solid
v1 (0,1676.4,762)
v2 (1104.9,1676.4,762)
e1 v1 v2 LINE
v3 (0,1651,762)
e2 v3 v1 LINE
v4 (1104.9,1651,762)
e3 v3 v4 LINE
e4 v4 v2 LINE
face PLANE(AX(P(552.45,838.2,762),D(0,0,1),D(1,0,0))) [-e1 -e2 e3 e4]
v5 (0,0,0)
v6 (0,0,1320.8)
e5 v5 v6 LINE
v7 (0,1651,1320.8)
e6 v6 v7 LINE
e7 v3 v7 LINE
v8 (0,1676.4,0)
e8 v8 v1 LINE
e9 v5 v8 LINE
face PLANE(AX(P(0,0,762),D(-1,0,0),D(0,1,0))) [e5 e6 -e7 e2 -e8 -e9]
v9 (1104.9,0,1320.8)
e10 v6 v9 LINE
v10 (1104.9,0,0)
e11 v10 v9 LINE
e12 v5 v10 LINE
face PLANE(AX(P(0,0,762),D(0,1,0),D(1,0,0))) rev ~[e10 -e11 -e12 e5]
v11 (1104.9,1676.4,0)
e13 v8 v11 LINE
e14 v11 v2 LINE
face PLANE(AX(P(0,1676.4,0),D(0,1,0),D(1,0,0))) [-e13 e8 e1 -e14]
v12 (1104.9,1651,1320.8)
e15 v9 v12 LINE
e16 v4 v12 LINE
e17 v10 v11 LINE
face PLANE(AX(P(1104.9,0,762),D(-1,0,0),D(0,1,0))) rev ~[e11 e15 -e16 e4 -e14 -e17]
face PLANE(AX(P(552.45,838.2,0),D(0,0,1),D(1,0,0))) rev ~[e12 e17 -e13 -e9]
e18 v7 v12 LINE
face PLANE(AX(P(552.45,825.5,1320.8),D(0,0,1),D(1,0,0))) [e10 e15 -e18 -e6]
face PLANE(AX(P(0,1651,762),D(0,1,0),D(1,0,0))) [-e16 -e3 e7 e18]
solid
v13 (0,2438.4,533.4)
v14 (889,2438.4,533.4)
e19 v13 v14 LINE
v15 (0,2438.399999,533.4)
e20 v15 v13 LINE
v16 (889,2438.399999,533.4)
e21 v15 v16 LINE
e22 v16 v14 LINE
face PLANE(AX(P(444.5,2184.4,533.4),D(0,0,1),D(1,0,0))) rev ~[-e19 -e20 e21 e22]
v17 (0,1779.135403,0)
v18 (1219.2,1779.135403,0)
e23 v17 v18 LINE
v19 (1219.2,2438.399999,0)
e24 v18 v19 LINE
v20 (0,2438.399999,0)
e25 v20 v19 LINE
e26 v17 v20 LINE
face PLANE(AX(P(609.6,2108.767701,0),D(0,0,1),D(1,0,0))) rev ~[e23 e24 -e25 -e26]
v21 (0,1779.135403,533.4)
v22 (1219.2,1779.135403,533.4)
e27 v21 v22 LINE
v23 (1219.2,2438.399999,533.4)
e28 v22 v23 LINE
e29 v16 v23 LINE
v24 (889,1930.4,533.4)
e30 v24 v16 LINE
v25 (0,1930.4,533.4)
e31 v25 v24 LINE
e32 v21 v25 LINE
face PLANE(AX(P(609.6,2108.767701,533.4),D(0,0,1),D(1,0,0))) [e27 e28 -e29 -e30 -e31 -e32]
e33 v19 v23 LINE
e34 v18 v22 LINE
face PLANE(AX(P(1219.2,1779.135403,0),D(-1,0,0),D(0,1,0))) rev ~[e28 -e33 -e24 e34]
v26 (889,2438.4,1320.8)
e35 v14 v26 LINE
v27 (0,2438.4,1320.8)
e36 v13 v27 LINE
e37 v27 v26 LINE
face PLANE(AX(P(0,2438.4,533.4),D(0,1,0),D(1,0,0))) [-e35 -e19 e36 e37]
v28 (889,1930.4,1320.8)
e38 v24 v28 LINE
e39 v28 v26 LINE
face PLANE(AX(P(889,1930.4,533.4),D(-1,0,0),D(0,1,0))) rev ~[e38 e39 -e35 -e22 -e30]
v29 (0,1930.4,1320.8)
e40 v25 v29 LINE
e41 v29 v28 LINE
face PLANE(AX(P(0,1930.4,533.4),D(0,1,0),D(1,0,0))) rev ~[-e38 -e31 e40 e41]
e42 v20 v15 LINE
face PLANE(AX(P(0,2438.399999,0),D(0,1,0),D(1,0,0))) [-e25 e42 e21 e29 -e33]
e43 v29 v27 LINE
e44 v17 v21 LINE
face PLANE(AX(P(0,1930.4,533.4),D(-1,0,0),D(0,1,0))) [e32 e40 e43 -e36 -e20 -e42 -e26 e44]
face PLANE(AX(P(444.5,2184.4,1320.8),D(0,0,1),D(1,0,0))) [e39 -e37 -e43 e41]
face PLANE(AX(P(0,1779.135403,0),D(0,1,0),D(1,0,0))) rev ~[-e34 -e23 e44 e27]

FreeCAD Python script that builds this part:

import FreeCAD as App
import Part
import Sketcher
Q = App.Units.Quantity


def add_polygon(sketch, points):
    """Adds a closed chain of lines whose ends are joined by coincident constraints."""
    first, n = sketch.GeometryCount, len(points)
    for a, b in zip(points, points[1:] + points[:1]):
        sketch.addGeometry(Part.LineSegment(App.Vector(*a, 0), App.Vector(*b, 0)), False)
    for i in range(n):
        sketch.addConstraint(Sketcher.Constraint("Coincident", first + i, 2, first + (i + 1) % n, 1))

doc = App.newDocument("Part")
body = doc.addObject("PartDesign::Body", "Body")

sketch1 = doc.addObject("Sketcher::SketchObject", "Sketch")
body.addObject(sketch1)
sketch1.AttachmentSupport = (doc.XY_Plane, [""])
sketch1.MapMode = "FlatFace"
add_polygon(sketch1, [(0, 1676), (0, 0), (1105, 0), (1105, 1676)])
sketch1.addConstraint(Sketcher.Constraint("Vertical", 0))
sketch1.addConstraint(Sketcher.Constraint("Horizontal", 1))
sketch1.addConstraint(Sketcher.Constraint("Vertical", 2))
sketch1.addConstraint(Sketcher.Constraint("Horizontal", 3))
sketch1.addConstraint(Sketcher.Constraint("Coincident", 0, 2, -1, 1))
sketch1.addConstraint(Sketcher.Constraint("DistanceY", 0, 2, 0, 1, Q("66 in")))
sketch1.addConstraint(Sketcher.Constraint("DistanceX", 1, 1, 1, 2, Q("43.5 in")))
pad1 = doc.addObject("PartDesign::Pad", "Pad")
body.addObject(pad1)
pad1.Profile = sketch1
pad1.Length = Q("30 in")

sketch2 = doc.addObject("Sketcher::SketchObject", "Sketch001")
body.addObject(sketch2)
sketch2.AttachmentSupport = (doc.XY_Plane, [""])
sketch2.MapMode = "FlatFace"
sketch2.AttachmentOffset = App.Placement(App.Vector(0, 0, 30 * 25.4), App.Rotation())
add_polygon(sketch2, [(0, 1651), (0, 0), (1105, 0), (1105, 1651)])
sketch2.addConstraint(Sketcher.Constraint("Vertical", 0))
sketch2.addConstraint(Sketcher.Constraint("Horizontal", 1))
sketch2.addConstraint(Sketcher.Constraint("Vertical", 2))
sketch2.addConstraint(Sketcher.Constraint("Horizontal", 3))
sketch2.addConstraint(Sketcher.Constraint("Coincident", 0, 2, -1, 1))
sketch2.addConstraint(Sketcher.Constraint("DistanceY", 0, 2, 0, 1, Q("65 in")))
sketch2.addConstraint(Sketcher.Constraint("DistanceX", 1, 1, 1, 2, Q("43.5 in")))
pad2 = doc.addObject("PartDesign::Pad", "Pad001")
body.addObject(pad2)
pad2.Profile = sketch2
pad2.Length = Q("22 in")
body2 = doc.addObject("PartDesign::Body", "Body001")

sketch3 = doc.addObject("Sketcher::SketchObject", "Sketch002")
body2.addObject(sketch3)
sketch3.AttachmentSupport = (doc.getObject("XY_Plane001"), [""])
sketch3.MapMode = "FlatFace"
add_polygon(sketch3, [(0, 2438), (0, 1779), (1219, 1779), (1219, 2438)])
sketch3.addConstraint(Sketcher.Constraint("Vertical", 0))
sketch3.addConstraint(Sketcher.Constraint("Horizontal", 1))
sketch3.addConstraint(Sketcher.Constraint("Vertical", 2))
sketch3.addConstraint(Sketcher.Constraint("Horizontal", 3))
sketch3.addConstraint(Sketcher.Constraint("PointOnObject", 0, 2, -2))
sketch3.addConstraint(Sketcher.Constraint("DistanceX", 1, 1, 1, 2, Q("48 in")))
sketch3.addConstraint(Sketcher.Constraint("DistanceY", -1, 1, 2, 2, Q("96 in")))
sketch3.addConstraint(Sketcher.Constraint("DistanceY", 0, 2, 0, 1, Q("659.264597 mm")))
pad3 = doc.addObject("PartDesign::Pad", "Pad002")
body2.addObject(pad3)
pad3.Profile = sketch3
pad3.Length = Q("21 in")

sketch4 = doc.addObject("Sketcher::SketchObject", "Sketch003")
body2.addObject(sketch4)
sketch4.AttachmentSupport = (doc.getObject("XY_Plane001"), [""])
sketch4.MapMode = "FlatFace"
sketch4.AttachmentOffset = App.Placement(App.Vector(0, 0, 21 * 25.4), App.Rotation())
add_polygon(sketch4, [(0, 2438), (0, 1930), (889, 1930), (889, 2438)])
sketch4.addConstraint(Sketcher.Constraint("Vertical", 0))
sketch4.addConstraint(Sketcher.Constraint("Horizontal", 1))
sketch4.addConstraint(Sketcher.Constraint("Vertical", 2))
sketch4.addConstraint(Sketcher.Constraint("Horizontal", 3))
sketch4.addConstraint(Sketcher.Constraint("PointOnObject", 0, 2, -2))
sketch4.addConstraint(Sketcher.Constraint("DistanceX", 1, 1, 1, 2, Q("35 in")))
sketch4.addConstraint(Sketcher.Constraint("DistanceY", 0, 2, 0, 1, Q("20 in")))
sketch4.addConstraint(Sketcher.Constraint("DistanceY", -1, 1, 0, 2, Q("76 in")))
pad4 = doc.addObject("PartDesign::Pad", "Pad003")
body2.addObject(pad4)
pad4.Profile = sketch4
pad4.Length = Q("31 in")

doc.recompute()
